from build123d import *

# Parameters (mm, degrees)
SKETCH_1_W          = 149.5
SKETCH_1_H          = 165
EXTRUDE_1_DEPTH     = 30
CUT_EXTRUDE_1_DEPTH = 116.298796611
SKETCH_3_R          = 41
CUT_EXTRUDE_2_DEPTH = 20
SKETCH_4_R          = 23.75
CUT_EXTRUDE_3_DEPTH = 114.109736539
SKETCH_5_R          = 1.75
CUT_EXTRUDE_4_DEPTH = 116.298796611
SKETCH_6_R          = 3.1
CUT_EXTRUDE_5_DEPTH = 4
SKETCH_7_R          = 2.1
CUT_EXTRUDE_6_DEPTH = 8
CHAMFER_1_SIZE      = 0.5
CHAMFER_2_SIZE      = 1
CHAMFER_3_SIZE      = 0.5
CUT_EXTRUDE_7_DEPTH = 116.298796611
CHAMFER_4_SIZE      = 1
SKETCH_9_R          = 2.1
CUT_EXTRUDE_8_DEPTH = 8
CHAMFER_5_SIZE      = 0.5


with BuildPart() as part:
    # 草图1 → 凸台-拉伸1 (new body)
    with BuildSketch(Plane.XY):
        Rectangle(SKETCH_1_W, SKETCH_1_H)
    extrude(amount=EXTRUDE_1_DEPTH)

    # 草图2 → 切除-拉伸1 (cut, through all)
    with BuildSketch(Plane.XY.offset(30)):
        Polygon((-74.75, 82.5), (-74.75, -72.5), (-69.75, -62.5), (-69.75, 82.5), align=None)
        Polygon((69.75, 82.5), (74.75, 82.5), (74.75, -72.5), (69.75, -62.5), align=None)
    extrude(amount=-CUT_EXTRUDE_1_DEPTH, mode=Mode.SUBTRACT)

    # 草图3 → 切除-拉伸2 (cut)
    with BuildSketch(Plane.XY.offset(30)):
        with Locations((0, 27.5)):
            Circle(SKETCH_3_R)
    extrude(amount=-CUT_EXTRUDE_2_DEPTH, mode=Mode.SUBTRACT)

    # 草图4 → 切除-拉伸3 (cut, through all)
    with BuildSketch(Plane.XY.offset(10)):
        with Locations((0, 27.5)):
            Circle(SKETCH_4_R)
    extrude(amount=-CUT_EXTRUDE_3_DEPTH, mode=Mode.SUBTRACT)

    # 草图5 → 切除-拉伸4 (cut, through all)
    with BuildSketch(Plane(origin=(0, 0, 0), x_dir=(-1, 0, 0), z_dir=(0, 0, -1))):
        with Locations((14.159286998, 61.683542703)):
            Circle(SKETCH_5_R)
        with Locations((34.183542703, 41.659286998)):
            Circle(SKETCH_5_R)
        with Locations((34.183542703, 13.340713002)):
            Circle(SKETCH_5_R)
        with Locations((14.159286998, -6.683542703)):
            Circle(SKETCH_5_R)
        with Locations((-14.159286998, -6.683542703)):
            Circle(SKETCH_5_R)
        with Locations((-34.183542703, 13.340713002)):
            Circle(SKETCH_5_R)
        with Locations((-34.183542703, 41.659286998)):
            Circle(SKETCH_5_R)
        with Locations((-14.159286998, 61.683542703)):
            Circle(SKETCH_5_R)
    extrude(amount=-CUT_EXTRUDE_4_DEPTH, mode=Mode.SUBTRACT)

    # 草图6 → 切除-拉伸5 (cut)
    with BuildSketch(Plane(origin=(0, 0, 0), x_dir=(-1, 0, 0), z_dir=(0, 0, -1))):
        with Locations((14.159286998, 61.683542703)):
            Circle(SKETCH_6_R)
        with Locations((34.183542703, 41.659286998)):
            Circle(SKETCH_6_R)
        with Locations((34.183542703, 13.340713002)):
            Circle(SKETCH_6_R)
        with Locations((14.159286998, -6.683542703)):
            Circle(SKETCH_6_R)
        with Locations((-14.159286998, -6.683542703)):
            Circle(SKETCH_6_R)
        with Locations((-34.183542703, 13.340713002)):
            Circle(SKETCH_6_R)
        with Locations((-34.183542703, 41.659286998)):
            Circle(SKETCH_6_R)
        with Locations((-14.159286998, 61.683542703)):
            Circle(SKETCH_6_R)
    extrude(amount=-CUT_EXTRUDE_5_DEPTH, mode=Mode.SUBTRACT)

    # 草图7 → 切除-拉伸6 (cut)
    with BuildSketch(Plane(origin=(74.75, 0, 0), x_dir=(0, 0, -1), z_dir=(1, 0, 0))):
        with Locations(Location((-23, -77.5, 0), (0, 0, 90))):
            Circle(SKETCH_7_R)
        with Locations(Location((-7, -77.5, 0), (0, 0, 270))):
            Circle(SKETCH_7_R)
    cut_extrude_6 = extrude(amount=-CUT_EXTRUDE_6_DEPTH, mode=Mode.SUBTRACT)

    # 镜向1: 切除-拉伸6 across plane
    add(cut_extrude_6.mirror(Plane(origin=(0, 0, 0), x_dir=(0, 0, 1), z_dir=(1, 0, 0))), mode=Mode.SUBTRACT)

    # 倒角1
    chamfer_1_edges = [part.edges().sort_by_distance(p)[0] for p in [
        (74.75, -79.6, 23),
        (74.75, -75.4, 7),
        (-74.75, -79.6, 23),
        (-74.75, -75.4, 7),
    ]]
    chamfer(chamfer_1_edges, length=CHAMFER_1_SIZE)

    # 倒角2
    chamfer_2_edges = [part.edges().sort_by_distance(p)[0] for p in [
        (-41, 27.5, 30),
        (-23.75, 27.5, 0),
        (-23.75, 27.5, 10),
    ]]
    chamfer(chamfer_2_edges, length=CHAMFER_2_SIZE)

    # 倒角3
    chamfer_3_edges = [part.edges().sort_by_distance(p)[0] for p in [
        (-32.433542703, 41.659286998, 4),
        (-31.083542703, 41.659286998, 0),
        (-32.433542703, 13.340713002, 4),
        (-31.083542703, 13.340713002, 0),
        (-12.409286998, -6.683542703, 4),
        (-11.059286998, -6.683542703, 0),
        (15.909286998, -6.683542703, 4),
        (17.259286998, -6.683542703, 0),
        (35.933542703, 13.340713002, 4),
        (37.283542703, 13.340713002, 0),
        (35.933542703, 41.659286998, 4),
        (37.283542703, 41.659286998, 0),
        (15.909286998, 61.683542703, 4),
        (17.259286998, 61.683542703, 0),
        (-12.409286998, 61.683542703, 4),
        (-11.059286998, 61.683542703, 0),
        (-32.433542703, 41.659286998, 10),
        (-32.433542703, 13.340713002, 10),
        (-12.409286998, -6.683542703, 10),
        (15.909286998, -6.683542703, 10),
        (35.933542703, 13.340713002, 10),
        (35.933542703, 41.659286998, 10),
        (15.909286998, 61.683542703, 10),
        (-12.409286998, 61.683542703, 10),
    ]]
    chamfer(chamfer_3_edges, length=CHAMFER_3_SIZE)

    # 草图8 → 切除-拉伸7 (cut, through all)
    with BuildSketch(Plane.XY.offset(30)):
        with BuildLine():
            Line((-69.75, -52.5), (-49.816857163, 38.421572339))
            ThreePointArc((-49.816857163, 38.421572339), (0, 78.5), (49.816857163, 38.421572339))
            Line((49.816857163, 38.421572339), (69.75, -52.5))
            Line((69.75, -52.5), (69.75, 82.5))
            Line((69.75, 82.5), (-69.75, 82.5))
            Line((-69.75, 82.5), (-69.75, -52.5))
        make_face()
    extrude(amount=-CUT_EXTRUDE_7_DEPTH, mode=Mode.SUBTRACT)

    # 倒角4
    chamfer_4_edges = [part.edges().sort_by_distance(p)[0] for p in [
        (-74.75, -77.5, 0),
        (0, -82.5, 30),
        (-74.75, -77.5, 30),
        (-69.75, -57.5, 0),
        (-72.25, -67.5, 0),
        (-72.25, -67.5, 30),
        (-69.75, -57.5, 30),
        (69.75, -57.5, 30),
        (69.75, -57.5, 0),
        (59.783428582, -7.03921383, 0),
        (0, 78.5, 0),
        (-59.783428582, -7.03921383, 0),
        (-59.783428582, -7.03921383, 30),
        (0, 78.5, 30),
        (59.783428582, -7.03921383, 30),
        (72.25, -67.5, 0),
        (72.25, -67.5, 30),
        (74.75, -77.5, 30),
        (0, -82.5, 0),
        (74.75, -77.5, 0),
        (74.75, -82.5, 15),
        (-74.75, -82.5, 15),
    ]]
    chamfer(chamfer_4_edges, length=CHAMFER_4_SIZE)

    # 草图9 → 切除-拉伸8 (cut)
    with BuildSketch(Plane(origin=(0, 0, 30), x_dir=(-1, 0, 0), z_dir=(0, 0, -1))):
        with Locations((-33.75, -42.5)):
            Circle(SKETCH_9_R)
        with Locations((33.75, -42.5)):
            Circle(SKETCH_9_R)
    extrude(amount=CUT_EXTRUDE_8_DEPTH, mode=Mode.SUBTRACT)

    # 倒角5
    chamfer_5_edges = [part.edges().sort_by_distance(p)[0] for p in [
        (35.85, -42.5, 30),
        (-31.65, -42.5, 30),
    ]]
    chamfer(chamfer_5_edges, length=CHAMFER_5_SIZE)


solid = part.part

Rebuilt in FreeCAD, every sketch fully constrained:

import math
import FreeCAD as App
import Part
import Sketcher
Q = App.Units.Quantity


def edges_at(feature, points):
    """Names of the edges that pass closest to the given points."""
    edges = feature.Shape.Edges
    near = lambda p: min(range(len(edges)), key=lambda i: edges[i].distToShape(Part.Vertex(*p))[0])
    return sorted({f"Edge{near(p) + 1}" for p in points})

doc = App.newDocument("Part")
body = doc.addObject("PartDesign::Body", "Body")

sketch1 = doc.addObject("Sketcher::SketchObject", "Sketch")
body.addObject(sketch1)
sketch1.AttachmentSupport = (doc.XY_Plane, [""])
sketch1.MapMode = "FlatFace"
sketch1.addGeometry(Part.LineSegment(App.Vector(-75, 82, 0), App.Vector(-75, -82, 0)), False)
sketch1.addGeometry(Part.LineSegment(App.Vector(-75, -82, 0), App.Vector(75, -82, 0)), False)
sketch1.addGeometry(Part.LineSegment(App.Vector(75, -82, 0), App.Vector(75, 82, 0)), False)
sketch1.addGeometry(Part.LineSegment(App.Vector(75, 82, 0), App.Vector(-75, 82, 0)), False)
sketch1.addConstraint(Sketcher.Constraint("Coincident", 0, 2, 1, 1))
sketch1.addConstraint(Sketcher.Constraint("Coincident", 1, 2, 2, 1))
sketch1.addConstraint(Sketcher.Constraint("Coincident", 2, 2, 3, 1))
sketch1.addConstraint(Sketcher.Constraint("Coincident", 3, 2, 0, 1))
sketch1.addConstraint(Sketcher.Constraint("Vertical", 0))
sketch1.addConstraint(Sketcher.Constraint("Horizontal", 1))
sketch1.addConstraint(Sketcher.Constraint("Vertical", 2))
sketch1.addConstraint(Sketcher.Constraint("Horizontal", 3))
sketch1.addConstraint(Sketcher.Constraint("Symmetric", 0, 2, 2, 2, -1, 1))
sketch1.addConstraint(Sketcher.Constraint("DistanceY", 0, 2, 0, 1, Q("165 mm")))
sketch1.addConstraint(Sketcher.Constraint("DistanceX", 1, 1, 1, 2, Q("149.5 mm")))
pad1 = doc.addObject("PartDesign::Pad", "Pad")
body.addObject(pad1)
pad1.Profile = sketch1
pad1.Length = 30

sketch2 = doc.addObject("Sketcher::SketchObject", "Sketch001")
body.addObject(sketch2)
sketch2.AttachmentSupport = (doc.XY_Plane, [""])
sketch2.MapMode = "FlatFace"
sketch2.AttachmentOffset = App.Placement(App.Vector(0, 0, 30), App.Rotation())
sketch2.addGeometry(Part.LineSegment(App.Vector(-75, 82, 0), App.Vector(-75, -72, 0)), False)
sketch2.addGeometry(Part.LineSegment(App.Vector(-75, -72, 0), App.Vector(-70, -62, 0)), False)
sketch2.addGeometry(Part.LineSegment(App.Vector(-70, -62, 0), App.Vector(-70, 82, 0)), False)
sketch2.addGeometry(Part.LineSegment(App.Vector(-70, 82, 0), App.Vector(-75, 82, 0)), False)
sketch2.addGeometry(Part.LineSegment(App.Vector(75, 82, 0), App.Vector(70, 82, 0)), False)
sketch2.addGeometry(Part.LineSegment(App.Vector(70, 82, 0), App.Vector(70, -62, 0)), False)
sketch2.addGeometry(Part.LineSegment(App.Vector(70, -62, 0), App.Vector(75, -72, 0)), False)
sketch2.addGeometry(Part.LineSegment(App.Vector(75, -72, 0), App.Vector(75, 82, 0)), False)
sketch2.addConstraint(Sketcher.Constraint("Coincident", 0, 2, 1, 1))
sketch2.addConstraint(Sketcher.Constraint("Coincident", 1, 2, 2, 1))
sketch2.addConstraint(Sketcher.Constraint("Coincident", 2, 2, 3, 1))
sketch2.addConstraint(Sketcher.Constraint("Coincident", 3, 2, 0, 1))
sketch2.addConstraint(Sketcher.Constraint("Coincident", 4, 2, 5, 1))
sketch2.addConstraint(Sketcher.Constraint("Coincident", 5, 2, 6, 1))
sketch2.addConstraint(Sketcher.Constraint("Coincident", 6, 2, 7, 1))
sketch2.addConstraint(Sketcher.Constraint("Coincident", 7, 2, 4, 1))
sketch2.addConstraint(Sketcher.Constraint("Vertical", 0))
sketch2.addConstraint(Sketcher.Constraint("Vertical", 2))
sketch2.addConstraint(Sketcher.Constraint("Horizontal", 3))
sketch2.addConstraint(Sketcher.Constraint("Horizontal", 4))
sketch2.addConstraint(Sketcher.Constraint("Vertical", 5))
sketch2.addConstraint(Sketcher.Constraint("Vertical", 7))
sketch2.addConstraint(Sketcher.Constraint("Symmetric", 2, 2, 4, 2, -2))
sketch2.addConstraint(Sketcher.Constraint("Symmetric", 0, 2, 6, 2, -2))
sketch2.addConstraint(Sketcher.Constraint("Horizontal", 1, 2, 5, 2))
sketch2.addConstraint(Sketcher.Constraint("DistanceX", 3, 2, 3, 1, Q("5 mm")))
sketch2.addConstraint(Sketcher.Constraint("DistanceY", 0, 2, 0, 1, Q("155 mm")))
sketch2.addConstraint(Sketcher.Constraint("DistanceY", 2, 1, 2, 2, Q("145 mm")))
sketch2.addConstraint(Sketcher.Constraint("DistanceY", 0, 2, -1, 1, Q("72.5 mm")))
sketch2.addConstraint(Sketcher.Constraint("DistanceX", 2, 2, 4, 2, Q("139.5 mm")))
pocket1 = doc.addObject("PartDesign::Pocket", "Pocket")
body.addObject(pocket1)
pocket1.Profile = sketch2
pocket1.Type = "ThroughAll"

sketch3 = doc.addObject("Sketcher::SketchObject", "Sketch002")
body.addObject(sketch3)
sketch3.AttachmentSupport = (doc.XY_Plane, [""])
sketch3.MapMode = "FlatFace"
sketch3.AttachmentOffset = App.Placement(App.Vector(0, 0, 30), App.Rotation())
sketch3.addGeometry(Part.Circle(App.Vector(0, 28, 0), App.Vector(0, 0, 1), 41), False)
sketch3.addConstraint(Sketcher.Constraint("PointOnObject", 0, 3, -2))
sketch3.addConstraint(Sketcher.Constraint("Diameter", 0, Q("82 mm")))
sketch3.addConstraint(Sketcher.Constraint("DistanceY", -1, 1, 0, 3, Q("27.5 mm")))
pocket2 = doc.addObject("PartDesign::Pocket", "Pocket001")
body.addObject(pocket2)
pocket2.Profile = sketch3
pocket2.Length = 20

sketch4 = doc.addObject("Sketcher::SketchObject", "Sketch003")
body.addObject(sketch4)
sketch4.AttachmentSupport = (doc.XY_Plane, [""])
sketch4.MapMode = "FlatFace"
sketch4.AttachmentOffset = App.Placement(App.Vector(0, 0, 10), App.Rotation())
sketch4.addGeometry(Part.Circle(App.Vector(0, 28, 0), App.Vector(0, 0, 1), 24), False)
sketch4.addConstraint(Sketcher.Constraint("PointOnObject", 0, 3, -2))
sketch4.addConstraint(Sketcher.Constraint("Diameter", 0, Q("47.5 mm")))
sketch4.addConstraint(Sketcher.Constraint("DistanceY", -1, 1, 0, 3, Q("27.5 mm")))
pocket3 = doc.addObject("PartDesign::Pocket", "Pocket002")
body.addObject(pocket3)
pocket3.Profile = sketch4
pocket3.Type = "ThroughAll"

sketch5 = doc.addObject("Sketcher::SketchObject", "Sketch004")
body.addObject(sketch5)
sketch5.AttachmentSupport = (doc.XY_Plane, [""])
sketch5.MapMode = "FlatFace"
sketch5.addGeometry(Part.Circle(App.Vector(-14.2, 61.7, 0), App.Vector(0, 0, 1), 1.8), False)
sketch5.addGeometry(Part.Circle(App.Vector(-34.2, 41.7, 0), App.Vector(0, 0, 1), 1.8), False)
sketch5.addGeometry(Part.Circle(App.Vector(-34.2, 13.3, 0), App.Vector(0, 0, 1), 1.8), False)
sketch5.addGeometry(Part.Circle(App.Vector(-14.2, -6.7, 0), App.Vector(0, 0, 1), 1.8), False)
sketch5.addGeometry(Part.Circle(App.Vector(14.2, -6.7, 0), App.Vector(0, 0, 1), 1.8), False)
sketch5.addGeometry(Part.Circle(App.Vector(34.2, 13.3, 0), App.Vector(0, 0, 1), 1.8), False)
sketch5.addGeometry(Part.Circle(App.Vector(34.2, 41.7, 0), App.Vector(0, 0, 1), 1.8), False)
sketch5.addGeometry(Part.Circle(App.Vector(14.2, 61.7, 0), App.Vector(0, 0, 1), 1.8), False)
sketch5.addConstraint(Sketcher.Constraint("Equal", 0, 1))
sketch5.addConstraint(Sketcher.Constraint("Equal", 1, 2))
sketch5.addConstraint(Sketcher.Constraint("Equal", 2, 3))
sketch5.addConstraint(Sketcher.Constraint("Equal", 3, 4))
sketch5.addConstraint(Sketcher.Constraint("Equal", 4, 5))
sketch5.addConstraint(Sketcher.Constraint("Equal", 5, 6))
sketch5.addConstraint(Sketcher.Constraint("Equal", 6, 7))
sketch5.addConstraint(Sketcher.Constraint("Symmetric", 3, 3, 4, 3, -2))
sketch5.addConstraint(Sketcher.Constraint("Symmetric", 2, 3, 5, 3, -2))
sketch5.addConstraint(Sketcher.Constraint("Symmetric", 1, 3, 6, 3, -2))
sketch5.addConstraint(Sketcher.Constraint("Symmetric", 0, 3, 7, 3, -2))
sketch5.addConstraint(Sketcher.Constraint("Vertical", 1, 3, 2, 3))
sketch5.addConstraint(Sketcher.Constraint("Vertical", 0, 3, 3, 3))
sketch5.addConstraint(Sketcher.Constraint("Diameter", 0, Q("3.5 mm")))
sketch5.addConstraint(Sketcher.Constraint("DistanceY", 2, 3, 0, 3, Q("48.34283 mm")))
sketch5.addConstraint(Sketcher.Constraint("DistanceY", 3, 3, 1, 3, Q("48.34283 mm")))
sketch5.addConstraint(Sketcher.Constraint("DistanceX", 2, 3, 4, 3, Q("48.34283 mm")))
sketch5.addConstraint(Sketcher.Constraint("DistanceX", 0, 3, -1, 1, Q("14.159287 mm")))
sketch5.addConstraint(Sketcher.Constraint("DistanceY", -1, 1, 0, 3, Q("61.683543 mm")))
sketch5.addConstraint(Sketcher.Constraint("DistanceY", -1, 1, 1, 3, Q("41.659287 mm")))
pocket4 = doc.addObject("PartDesign::Pocket", "Pocket003")
body.addObject(pocket4)
pocket4.Profile = sketch5
pocket4.Type = "ThroughAll"
pocket4.Reversed = True

sketch6 = doc.addObject("Sketcher::SketchObject", "Sketch005")
body.addObject(sketch6)
sketch6.AttachmentSupport = (doc.XY_Plane, [""])
sketch6.MapMode = "FlatFace"
sketch6.addGeometry(Part.Circle(App.Vector(-14.2, 61.7, 0), App.Vector(0, 0, 1), 3.1), False)
sketch6.addGeometry(Part.Circle(App.Vector(-34.2, 41.7, 0), App.Vector(0, 0, 1), 3.1), False)
sketch6.addGeometry(Part.Circle(App.Vector(-34.2, 13.3, 0), App.Vector(0, 0, 1), 3.1), False)
sketch6.addGeometry(Part.Circle(App.Vector(-14.2, -6.7, 0), App.Vector(0, 0, 1), 3.1), False)
sketch6.addGeometry(Part.Circle(App.Vector(14.2, -6.7, 0), App.Vector(0, 0, 1), 3.1), False)
sketch6.addGeometry(Part.Circle(App.Vector(34.2, 13.3, 0), App.Vector(0, 0, 1), 3.1), False)
sketch6.addGeometry(Part.Circle(App.Vector(34.2, 41.7, 0), App.Vector(0, 0, 1), 3.1), False)
sketch6.addGeometry(Part.Circle(App.Vector(14.2, 61.7, 0), App.Vector(0, 0, 1), 3.1), False)
sketch6.addConstraint(Sketcher.Constraint("Equal", 0, 1))
sketch6.addConstraint(Sketcher.Constraint("Equal", 1, 2))
sketch6.addConstraint(Sketcher.Constraint("Equal", 2, 3))
sketch6.addConstraint(Sketcher.Constraint("Equal", 3, 4))
sketch6.addConstraint(Sketcher.Constraint("Equal", 4, 5))
sketch6.addConstraint(Sketcher.Constraint("Equal", 5, 6))
sketch6.addConstraint(Sketcher.Constraint("Equal", 6, 7))
sketch6.addConstraint(Sketcher.Constraint("Symmetric", 3, 3, 4, 3, -2))
sketch6.addConstraint(Sketcher.Constraint("Symmetric", 2, 3, 5, 3, -2))
sketch6.addConstraint(Sketcher.Constraint("Symmetric", 1, 3, 6, 3, -2))
sketch6.addConstraint(Sketcher.Constraint("Symmetric", 0, 3, 7, 3, -2))
sketch6.addConstraint(Sketcher.Constraint("Vertical", 1, 3, 2, 3))
sketch6.addConstraint(Sketcher.Constraint("Vertical", 0, 3, 3, 3))
sketch6.addConstraint(Sketcher.Constraint("Diameter", 0, Q("6.2 mm")))
sketch6.addConstraint(Sketcher.Constraint("DistanceY", 2, 3, 0, 3, Q("48.34283 mm")))
sketch6.addConstraint(Sketcher.Constraint("DistanceY", 3, 3, 1, 3, Q("48.34283 mm")))
sketch6.addConstraint(Sketcher.Constraint("DistanceX", 2, 3, 4, 3, Q("48.34283 mm")))
sketch6.addConstraint(Sketcher.Constraint("DistanceX", 0, 3, -1, 1, Q("14.159287 mm")))
sketch6.addConstraint(Sketcher.Constraint("DistanceY", -1, 1, 0, 3, Q("61.683543 mm")))
sketch6.addConstraint(Sketcher.Constraint("DistanceY", -1, 1, 1, 3, Q("41.659287 mm")))
pocket5 = doc.addObject("PartDesign::Pocket", "Pocket004")
body.addObject(pocket5)
pocket5.Profile = sketch6
pocket5.Length = 4
pocket5.Reversed = True

sketch7 = doc.addObject("Sketcher::SketchObject", "Sketch006")
body.addObject(sketch7)
sketch7.AttachmentSupport = (doc.YZ_Plane, [""])
sketch7.MapMode = "FlatFace"
sketch7.AttachmentOffset = App.Placement(App.Vector(0, 0, 74.75), App.Rotation())
sketch7.addGeometry(Part.Circle(App.Vector(-77.5, 23, 0), App.Vector(0, 0, 1), 2.1), False)
sketch7.addGeometry(Part.Circle(App.Vector(-77.5, 7, 0), App.Vector(0, 0, 1), 2.1), False)
sketch7.addConstraint(Sketcher.Constraint("Equal", 0, 1))
sketch7.addConstraint(Sketcher.Constraint("Vertical", 0, 3, 1, 3))
sketch7.addConstraint(Sketcher.Constraint("Diameter", 0, Q("4.2 mm")))
sketch7.addConstraint(Sketcher.Constraint("DistanceY", -1, 1, 0, 3, Q("23 mm")))
sketch7.addConstraint(Sketcher.Constraint("DistanceY", -1, 1, 1, 3, Q("7 mm")))
sketch7.addConstraint(Sketcher.Constraint("DistanceX", 0, 3, -1, 1, Q("77.5 mm")))
pocket6 = doc.addObject("PartDesign::Pocket", "Pocket005")
body.addObject(pocket6)
pocket6.Profile = sketch7
pocket6.Length = 8
doc.recompute()

mirrored = doc.addObject("PartDesign::Mirrored", "Mirrored")
body.addObject(mirrored)
mirrored.Originals = [pocket6]
mirrored.MirrorPlane = (doc.YZ_Plane, [""])
body.Tip = mirrored
doc.recompute()

chamfer = doc.addObject("PartDesign::Chamfer", "Chamfer")
body.addObject(chamfer)
chamfer.Base = (mirrored, edges_at(mirrored, [
    (74.75, -79.6, 23),
    (74.75, -75.4, 7),
    (-74.75, -79.6, 23),
    (-74.75, -75.4, 7),
]))
chamfer.Size = 0.5
doc.recompute()

chamfer2 = doc.addObject("PartDesign::Chamfer", "Chamfer001")
body.addObject(chamfer2)
chamfer2.Base = (chamfer, edges_at(chamfer, [(-41, 27.5, 30), (-23.75, 27.5, 0), (-23.75, 27.5, 10)]))
chamfer2.Size = 1
doc.recompute()

chamfer3 = doc.addObject("PartDesign::Chamfer", "Chamfer002")
body.addObject(chamfer3)
chamfer3.Base = (chamfer2, edges_at(chamfer2, [
    (-32.434, 41.659, 4),
    (-31.084, 41.659, 0),
    (-32.434, 13.341, 4),
    (-31.084, 13.341, 0),
    (-12.409, -6.684, 4),
    (-11.059, -6.684, 0),
    (15.909, -6.684, 4),
    (17.259, -6.684, 0),
    (35.934, 13.341, 4),
    (37.284, 13.341, 0),
    (35.934, 41.659, 4),
    (37.284, 41.659, 0),
    (15.909, 61.684, 4),
    (17.259, 61.684, 0),
    (-12.409, 61.684, 4),
    (-11.059, 61.684, 0),
    (-32.434, 41.659, 10),
    (-32.434, 13.341, 10),
    (-12.409, -6.684, 10),
    (15.909, -6.684, 10),
    (35.934, 13.341, 10),
    (35.934, 41.659, 10),
    (15.909, 61.684, 10),
    (-12.409, 61.684, 10),
]))
chamfer3.Size = 0.5

sketch8 = doc.addObject("Sketcher::SketchObject", "Sketch007")
body.addObject(sketch8)
sketch8.AttachmentSupport = (doc.XY_Plane, [""])
sketch8.MapMode = "FlatFace"
sketch8.AttachmentOffset = App.Placement(App.Vector(0, 0, 30), App.Rotation())
sketch8.addGeometry(Part.LineSegment(App.Vector(-70, -52, 0), App.Vector(-50, 38, 0)), False)
sketch8.addGeometry(Part.ArcOfCircle(Part.Circle(App.Vector(0, 28, 0), App.Vector(0, 0, 1), 51), math.radians(12), math.radians(168)), False)
sketch8.addGeometry(Part.LineSegment(App.Vector(50, 38, 0), App.Vector(70, -52, 0)), False)
sketch8.addGeometry(Part.LineSegment(App.Vector(70, -52, 0), App.Vector(70, 82, 0)), False)
sketch8.addGeometry(Part.LineSegment(App.Vector(70, 82, 0), App.Vector(-70, 82, 0)), False)
sketch8.addGeometry(Part.LineSegment(App.Vector(-70, 82, 0), App.Vector(-70, -52, 0)), False)
sketch8.addConstraint(Sketcher.Constraint("Tangent", 0, 2, 1, 2))
sketch8.addConstraint(Sketcher.Constraint("Tangent", 1, 1, 2, 1))
sketch8.addConstraint(Sketcher.Constraint("Coincident", 2, 2, 3, 1))
sketch8.addConstraint(Sketcher.Constraint("Coincident", 3, 2, 4, 1))
sketch8.addConstraint(Sketcher.Constraint("Coincident", 4, 2, 5, 1))
sketch8.addConstraint(Sketcher.Constraint("Coincident", 5, 2, 0, 1))
sketch8.addConstraint(Sketcher.Constraint("Vertical", 3))
sketch8.addConstraint(Sketcher.Constraint("Horizontal", 4))
sketch8.addConstraint(Sketcher.Constraint("Vertical", 5))
sketch8.addConstraint(Sketcher.Constraint("Symmetric", 0, 2, 1, 1, -2))
sketch8.addConstraint(Sketcher.Constraint("Horizontal", 2, 2, 5, 2))
sketch8.addConstraint(Sketcher.Constraint("Radius", 1, Q("51 mm")))
sketch8.addConstraint(Sketcher.Constraint("DistanceY", 3, 1, 3, 2, Q("135 mm")))
sketch8.addConstraint(Sketcher.Constraint("DistanceX", 4, 2, 4, 1, Q("139.5 mm")))
sketch8.addConstraint(Sketcher.Constraint("DistanceY", 2, 2, 1, 3, Q("80 mm")))
sketch8.addConstraint(Sketcher.Constraint("DistanceY", -1, 1, 1, 3, Q("27.5 mm")))
pocket7 = doc.addObject("PartDesign::Pocket", "Pocket006")
body.addObject(pocket7)
pocket7.Profile = sketch8
pocket7.Type = "ThroughAll"
doc.recompute()

chamfer4 = doc.addObject("PartDesign::Chamfer", "Chamfer003")
body.addObject(chamfer4)
chamfer4.Base = (pocket7, edges_at(pocket7, [
    (-74.75, -77.5, 0),
    (0, -82.5, 30),
    (-74.75, -77.5, 30),
    (-69.75, -57.5, 0),
    (-72.25, -67.5, 0),
    (-72.25, -67.5, 30),
    (-69.75, -57.5, 30),
    (69.75, -57.5, 30),
    (69.75, -57.5, 0),
    (59.783, -7.039, 0),
    (0, 78.5, 0),
    (-59.783, -7.039, 0),
    (-59.783, -7.039, 30),
    (0, 78.5, 30),
    (59.783, -7.039, 30),
    (72.25, -67.5, 0),
    (72.25, -67.5, 30),
    (74.75, -77.5, 30),
    (0, -82.5, 0),
    (74.75, -77.5, 0),
    (74.75, -82.5, 15),
    (-74.75, -82.5, 15),
]))
chamfer4.Size = 1

sketch9 = doc.addObject("Sketcher::SketchObject", "Sketch008")
body.addObject(sketch9)
sketch9.AttachmentSupport = (doc.XY_Plane, [""])
sketch9.MapMode = "FlatFace"
sketch9.AttachmentOffset = App.Placement(App.Vector(0, 0, 30), App.Rotation())
sketch9.addGeometry(Part.Circle(App.Vector(33.8, -42.5, 0), App.Vector(0, 0, 1), 2.1), False)
sketch9.addGeometry(Part.Circle(App.Vector(-33.8, -42.5, 0), App.Vector(0, 0, 1), 2.1), False)
sketch9.addConstraint(Sketcher.Constraint("Equal", 0, 1))
sketch9.addConstraint(Sketcher.Constraint("Symmetric", 0, 3, 1, 3, -2))
sketch9.addConstraint(Sketcher.Constraint("Diameter", 0, Q("4.2 mm")))
sketch9.addConstraint(Sketcher.Constraint("DistanceY", 0, 3, -1, 1, Q("42.5 mm")))
sketch9.addConstraint(Sketcher.Constraint("DistanceX", 1, 3, 0, 3, Q("67.5 mm")))
pocket8 = doc.addObject("PartDesign::Pocket", "Pocket007")
body.addObject(pocket8)
pocket8.Profile = sketch9
pocket8.Length = 8
doc.recompute()

chamfer5 = doc.addObject("PartDesign::Chamfer", "Chamfer004")
body.addObject(chamfer5)
chamfer5.Base = (pocket8, edges_at(pocket8, [(35.85, -42.5, 30), (-31.65, -42.5, 30)]))
chamfer5.Size = 0.5

doc.recompute()
